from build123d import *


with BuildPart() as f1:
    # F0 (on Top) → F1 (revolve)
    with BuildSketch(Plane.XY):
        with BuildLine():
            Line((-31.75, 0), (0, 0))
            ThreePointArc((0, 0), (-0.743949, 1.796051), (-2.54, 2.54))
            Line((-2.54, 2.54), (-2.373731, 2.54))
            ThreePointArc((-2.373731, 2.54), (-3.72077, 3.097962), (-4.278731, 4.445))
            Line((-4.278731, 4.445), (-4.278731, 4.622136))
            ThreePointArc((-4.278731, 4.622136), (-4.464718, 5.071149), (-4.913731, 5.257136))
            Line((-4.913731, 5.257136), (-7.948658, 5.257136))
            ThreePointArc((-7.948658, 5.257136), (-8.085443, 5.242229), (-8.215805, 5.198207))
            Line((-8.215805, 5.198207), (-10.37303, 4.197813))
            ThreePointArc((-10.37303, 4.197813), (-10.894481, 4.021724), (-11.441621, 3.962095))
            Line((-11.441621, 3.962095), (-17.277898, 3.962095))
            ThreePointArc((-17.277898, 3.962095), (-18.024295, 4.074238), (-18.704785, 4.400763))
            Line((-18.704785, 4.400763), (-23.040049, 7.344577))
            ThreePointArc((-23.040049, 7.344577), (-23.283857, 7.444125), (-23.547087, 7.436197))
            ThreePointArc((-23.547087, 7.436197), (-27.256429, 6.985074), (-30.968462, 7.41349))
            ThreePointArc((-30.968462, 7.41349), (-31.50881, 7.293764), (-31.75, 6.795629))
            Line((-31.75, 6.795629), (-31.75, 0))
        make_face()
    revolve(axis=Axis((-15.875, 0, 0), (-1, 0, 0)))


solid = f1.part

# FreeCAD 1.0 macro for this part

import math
import FreeCAD as App
import Part
import Sketcher

V = App.Vector
Q = App.Units.Quantity

doc = App.newDocument("Part")
body = doc.addObject("PartDesign::Body", "Body")

# Sketch on XY plane
sketch1 = body.newObject("Sketcher::SketchObject", "Sketch")
sketch1.AttachmentSupport = (doc.getObject("XY_Plane"), [""])
sketch1.MapMode = "FlatFace"
sketch1.addGeometry(Part.LineSegment(V(-31.75, 0, 0), V(0, 0, 0)), False)
sketch1.addGeometry(Part.ArcOfCircle(Part.Circle(V(-2.54, 0, 0), V(0, 0, 1), 2.54), math.radians(0), math.radians(90)), False)
sketch1.addGeometry(Part.LineSegment(V(-2.54, 2.54, 0), V(-2.37, 2.54, 0)), False)
sketch1.addGeometry(Part.ArcOfCircle(Part.Circle(V(-2.37, 4.44, 0), V(0, 0, 1), 1.9), math.radians(180), math.radians(270)), False)
sketch1.addGeometry(Part.LineSegment(V(-4.28, 4.45, 0), V(-4.28, 4.62, 0)), False)
sketch1.addGeometry(Part.ArcOfCircle(Part.Circle(V(-4.91, 4.62, 0), V(0, 0, 1), 0.63), math.radians(0), math.radians(90)), False)
sketch1.addGeometry(Part.LineSegment(V(-4.91, 5.26, 0), V(-7.95, 5.26, 0)), False)
sketch1.addGeometry(Part.ArcOfCircle(Part.Circle(V(-7.95, 4.62, 0), V(0, 0, 1), 0.63), math.radians(90), math.radians(115)), False)
sketch1.addGeometry(Part.LineSegment(V(-8.22, 5.2, 0), V(-10.37, 4.2, 0)), False)
sketch1.addGeometry(Part.ArcOfCircle(Part.Circle(V(-11.44, 6.5, 0), V(0, 0, 1), 2.54), math.radians(-90), math.radians(-65)), False)
sketch1.addGeometry(Part.LineSegment(V(-11.44, 3.96, 0), V(-17.28, 3.96, 0)), False)
sketch1.addGeometry(Part.ArcOfCircle(Part.Circle(V(-17.28, 6.5, 0), V(0, 0, 1), 2.54), math.radians(-124), math.radians(-90)), False)
sketch1.addGeometry(Part.LineSegment(V(-18.7, 4.4, 0), V(-23.04, 7.34, 0)), False)
sketch1.addGeometry(Part.ArcOfCircle(Part.Circle(V(-23.4, 6.82, 0), V(0, 0, 1), 0.63), math.radians(56), math.radians(104)), False)
sketch1.addGeometry(Part.ArcOfCircle(Part.Circle(V(-27.31, 22.86, 0), V(0, 0, 1), 15.87), math.radians(-103), math.radians(-76)), False)
sketch1.addGeometry(Part.ArcOfCircle(Part.Circle(V(-31.11, 6.8, 0), V(0, 0, 1), 0.64), math.radians(77), math.radians(180)), False)
sketch1.addGeometry(Part.LineSegment(V(-31.75, 6.8, 0), V(-31.75, 0, 0)), False)
sketch1.addConstraint(Sketcher.Constraint("Coincident", 0, 2, 1, 1))
sketch1.addConstraint(Sketcher.Constraint("Tangent", 1, 2, 2, 1))
sketch1.addConstraint(Sketcher.Constraint("Tangent", 2, 2, 3, 2))
sketch1.addConstraint(Sketcher.Constraint("Tangent", 3, 1, 4, 1))
sketch1.addConstraint(Sketcher.Constraint("Tangent", 4, 2, 5, 1))
sketch1.addConstraint(Sketcher.Constraint("Tangent", 5, 2, 6, 1))
sketch1.addConstraint(Sketcher.Constraint("Coincident", 6, 2, 7, 1))
sketch1.addConstraint(Sketcher.Constraint("Tangent", 7, 2, 8, 1))
sketch1.addConstraint(Sketcher.Constraint("Tangent", 8, 2, 9, 2))
sketch1.addConstraint(Sketcher.Constraint("Tangent", 9, 1, 10, 1))
sketch1.addConstraint(Sketcher.Constraint("Tangent", 10, 2, 11, 2))
sketch1.addConstraint(Sketcher.Constraint("Tangent", 11, 1, 12, 1))
sketch1.addConstraint(Sketcher.Constraint("Coincident", 12, 2, 13, 1))
sketch1.addConstraint(Sketcher.Constraint("Tangent", 13, 2, 14, 2))
sketch1.addConstraint(Sketcher.Constraint("Coincident", 14, 1, 15, 1))
sketch1.addConstraint(Sketcher.Constraint("Tangent", 15, 2, 16, 1))
sketch1.addConstraint(Sketcher.Constraint("Coincident", 16, 2, 0, 1))
sketch1.addConstraint(Sketcher.Constraint("Horizontal", 0))
sketch1.addConstraint(Sketcher.Constraint("Horizontal", 2))
sketch1.addConstraint(Sketcher.Constraint("Vertical", 4))
sketch1.addConstraint(Sketcher.Constraint("Horizontal", 6))
sketch1.addConstraint(Sketcher.Constraint("Horizontal", 10))
sketch1.addConstraint(Sketcher.Constraint("Vertical", 16))
sketch1.addConstraint(Sketcher.Constraint("Coincident", 0, 2, -1, 1))
sketch1.addConstraint(Sketcher.Constraint("Equal", 5, 13))
sketch1.addConstraint(Sketcher.Constraint("Equal", 5, 15))
sketch1.addConstraint(Sketcher.Constraint("PointOnObject", 1, 3, -1))
sketch1.addConstraint(Sketcher.Constraint("Radius", 1, Q("0.1 in")))
sketch1.addConstraint(Sketcher.Constraint("Radius", 3, Q("0.075 in")))
sketch1.addConstraint(Sketcher.Constraint("Radius", 5, Q("0.025 in")))
sketch1.addConstraint(Sketcher.Constraint("DistanceX", 0, 1, 0, 2, Q("1.25 in")))
sketch1.addConstraint(Sketcher.Constraint("DistanceX", 15, 3, 14, 3, Q("0.1499999 in")))
sketch1.addConstraint(Sketcher.Constraint("Radius", 7, 0.63499))
sketch1.addConstraint(Sketcher.Constraint("Radius", 9, 2.539989))
sketch1.addConstraint(Sketcher.Constraint("Radius", 14, 15.87498))
sketch1.addConstraint(Sketcher.Constraint("Radius", 11, 2.540014))
sketch1.addConstraint(Sketcher.Constraint("DistanceY", 7, 3, 13, 3, Q("0.0865 in")))
sketch1.addConstraint(Sketcher.Constraint("Distance", 8, 2.3779))
sketch1.addConstraint(Sketcher.Constraint("DistanceX", 2, 1, 2, 2, 0.166269))
sketch1.addConstraint(Sketcher.Constraint("DistanceY", 16, 2, 16, 1, 6.795629))
sketch1.addConstraint(Sketcher.Constraint("DistanceX", 10, 2, -1, 1, 17.277898))
sketch1.addConstraint(Sketcher.Constraint("DistanceX", 8, 2, 5, 3, 5.4593))
sketch1.addConstraint(Sketcher.Constraint("DistanceX", 13, 2, 11, 1, 4.842302))
sketch1.addConstraint(Sketcher.Constraint("DistanceY", 10, 2, 13, 2, 3.474102))
sketch1.addConstraint(Sketcher.Constraint("Distance", 12, 5.240282))
sketch1.addConstraint(Sketcher.Constraint("DistanceX", 6, 2, 6, 1, 3.034927))
sketch1.addConstraint(Sketcher.Constraint("DistanceY", -1, 1, 14, 1, 7.41349))
revolution = body.newObject("PartDesign::Revolution", "Revolution")
revolution.Profile = sketch1
revolution.ReferenceAxis = (sketch1, ["H_Axis"])
revolution.Angle = 360

doc.recompute()
